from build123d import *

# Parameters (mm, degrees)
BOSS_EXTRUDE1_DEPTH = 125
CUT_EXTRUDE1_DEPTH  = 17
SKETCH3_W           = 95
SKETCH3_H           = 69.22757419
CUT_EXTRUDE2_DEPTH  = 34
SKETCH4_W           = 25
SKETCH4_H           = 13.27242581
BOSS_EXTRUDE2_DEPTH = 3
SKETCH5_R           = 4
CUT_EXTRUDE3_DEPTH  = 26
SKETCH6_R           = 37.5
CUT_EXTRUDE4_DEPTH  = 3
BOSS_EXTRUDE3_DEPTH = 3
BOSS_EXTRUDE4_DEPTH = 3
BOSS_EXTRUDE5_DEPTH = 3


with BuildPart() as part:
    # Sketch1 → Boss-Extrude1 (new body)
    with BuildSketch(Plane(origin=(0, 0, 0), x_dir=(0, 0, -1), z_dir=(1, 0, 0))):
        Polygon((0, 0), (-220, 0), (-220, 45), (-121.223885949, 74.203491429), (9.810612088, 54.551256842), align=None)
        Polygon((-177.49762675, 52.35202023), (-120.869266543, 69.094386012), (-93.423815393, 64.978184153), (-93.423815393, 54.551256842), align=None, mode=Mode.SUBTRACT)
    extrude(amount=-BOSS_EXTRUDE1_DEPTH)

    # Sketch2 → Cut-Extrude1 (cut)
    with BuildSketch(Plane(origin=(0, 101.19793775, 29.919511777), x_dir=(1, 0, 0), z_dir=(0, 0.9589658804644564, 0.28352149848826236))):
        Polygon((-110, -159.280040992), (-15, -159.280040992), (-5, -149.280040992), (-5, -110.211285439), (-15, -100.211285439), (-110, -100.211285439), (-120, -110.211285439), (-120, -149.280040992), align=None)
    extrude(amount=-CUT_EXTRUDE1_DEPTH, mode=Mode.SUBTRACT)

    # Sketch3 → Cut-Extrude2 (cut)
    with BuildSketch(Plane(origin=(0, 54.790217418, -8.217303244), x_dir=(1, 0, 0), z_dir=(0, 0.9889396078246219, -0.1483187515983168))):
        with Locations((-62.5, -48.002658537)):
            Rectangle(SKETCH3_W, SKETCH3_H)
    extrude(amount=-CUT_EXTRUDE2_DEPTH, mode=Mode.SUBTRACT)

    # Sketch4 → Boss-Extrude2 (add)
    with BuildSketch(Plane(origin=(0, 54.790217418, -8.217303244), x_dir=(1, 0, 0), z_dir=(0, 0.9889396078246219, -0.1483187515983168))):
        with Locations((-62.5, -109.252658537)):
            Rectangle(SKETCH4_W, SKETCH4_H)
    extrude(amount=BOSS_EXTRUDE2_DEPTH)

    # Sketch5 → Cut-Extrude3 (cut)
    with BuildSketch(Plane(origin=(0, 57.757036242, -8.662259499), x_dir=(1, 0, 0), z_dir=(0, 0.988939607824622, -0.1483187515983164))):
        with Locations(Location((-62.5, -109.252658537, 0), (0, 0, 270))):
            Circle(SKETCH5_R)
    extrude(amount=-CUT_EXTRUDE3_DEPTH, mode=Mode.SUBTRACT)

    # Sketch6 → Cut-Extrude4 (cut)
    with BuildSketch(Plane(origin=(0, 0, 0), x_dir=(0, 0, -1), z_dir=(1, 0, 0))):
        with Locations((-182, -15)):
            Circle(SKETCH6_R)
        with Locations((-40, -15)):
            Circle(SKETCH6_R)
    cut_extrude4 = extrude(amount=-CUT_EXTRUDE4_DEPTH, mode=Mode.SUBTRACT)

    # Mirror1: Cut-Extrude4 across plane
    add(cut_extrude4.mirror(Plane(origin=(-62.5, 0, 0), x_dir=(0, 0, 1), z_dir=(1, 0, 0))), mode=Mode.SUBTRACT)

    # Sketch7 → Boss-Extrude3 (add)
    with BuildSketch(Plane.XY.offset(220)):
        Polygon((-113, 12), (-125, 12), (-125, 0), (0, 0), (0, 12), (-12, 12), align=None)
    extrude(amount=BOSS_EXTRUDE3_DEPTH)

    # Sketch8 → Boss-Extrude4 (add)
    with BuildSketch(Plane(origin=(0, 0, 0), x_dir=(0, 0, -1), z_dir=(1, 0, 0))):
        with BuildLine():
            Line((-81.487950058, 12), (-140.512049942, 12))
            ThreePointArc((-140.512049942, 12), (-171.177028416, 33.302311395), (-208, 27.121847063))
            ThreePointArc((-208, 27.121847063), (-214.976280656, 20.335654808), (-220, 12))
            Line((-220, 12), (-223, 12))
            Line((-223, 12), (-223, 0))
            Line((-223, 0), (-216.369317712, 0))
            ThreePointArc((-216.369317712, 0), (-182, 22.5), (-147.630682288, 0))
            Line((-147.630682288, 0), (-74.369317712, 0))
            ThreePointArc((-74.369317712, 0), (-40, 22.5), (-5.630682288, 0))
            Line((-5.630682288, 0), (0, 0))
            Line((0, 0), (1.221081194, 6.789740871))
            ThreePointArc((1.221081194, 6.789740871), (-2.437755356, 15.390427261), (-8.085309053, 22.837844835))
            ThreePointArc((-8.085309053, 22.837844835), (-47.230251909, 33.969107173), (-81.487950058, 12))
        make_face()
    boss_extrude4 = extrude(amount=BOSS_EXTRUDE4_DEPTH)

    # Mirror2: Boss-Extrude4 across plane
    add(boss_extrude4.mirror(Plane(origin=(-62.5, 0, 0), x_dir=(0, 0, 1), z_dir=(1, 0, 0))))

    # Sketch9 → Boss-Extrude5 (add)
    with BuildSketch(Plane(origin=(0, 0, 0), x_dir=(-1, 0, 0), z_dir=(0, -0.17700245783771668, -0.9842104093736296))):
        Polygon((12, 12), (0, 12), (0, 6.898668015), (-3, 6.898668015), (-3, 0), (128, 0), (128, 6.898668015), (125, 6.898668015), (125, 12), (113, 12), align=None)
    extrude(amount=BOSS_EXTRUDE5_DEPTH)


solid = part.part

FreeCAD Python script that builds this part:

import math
import FreeCAD as App
import Part
import Sketcher
from FreeCAD import Vector


def add_polygon(sketch, points):
    """Adds a closed chain of lines whose ends are joined by coincident constraints."""
    first, n = sketch.GeometryCount, len(points)
    for a, b in zip(points, points[1:] + points[:1]):
        sketch.addGeometry(Part.LineSegment(App.Vector(*a, 0), App.Vector(*b, 0)), False)
    for i in range(n):
        sketch.addConstraint(Sketcher.Constraint("Coincident", first + i, 2, first + (i + 1) % n, 1))

doc = App.newDocument("Part")
params = doc.addObject("Spreadsheet::Sheet", "Params")
for row, (alias, value) in enumerate([
    ("sketch1_width", "45 mm"),
    ("sketch1_height", "220 mm"),
    ("sketch1_length", "132.5 mm"),
    ("pad1_length", "125 mm"),
    ("sketch2_width", "95 mm"),
    ("pocket1_length", "17 mm"),
    ("sketch3_width", "95 mm"),
    ("pocket2_length", "34 mm"),
    ("sketch4_width", "25 mm"),
    ("pad2_length", "3 mm"),
    ("sketch5_diameter", "8 mm"),
    ("pocket3_length", "26 mm"),
    ("sketch6_diameter", "75 mm"),
    ("pocket4_length", "3 mm"),
    ("sketch7_width", "125 mm"),
    ("sketch7_height", "12 mm"),
    ("pad3_length", "3 mm"),
    ("sketch8_radius", "38 mm"),
    ("sketch8_radius2", "49.5 mm"),
    ("sketch8_radius3", "37.5 mm"),
    ("sketch8_width", "12 mm"),
    ("sketch8_height", "3 mm"),
    ("pad4_length", "3 mm"),
    ("sketch9_width", "3 mm"),
    ("sketch9_width2", "131 mm"),
    ("pad5_length", "3 mm"),
], start=1):
    params.set(f"A{row}", alias)
    params.set(f"B{row}", "=" + value)
    params.setAlias(f"B{row}", alias)

body = doc.addObject("PartDesign::Body", "Body")

# Sketch on YZ plane
sketch1 = doc.addObject("Sketcher::SketchObject", "Sketch")
body.addObject(sketch1)
sketch1.AttachmentSupport = (doc.YZ_Plane, [""])
sketch1.MapMode = "FlatFace"
add_polygon(sketch1, [(0, 220), (0, 0), (54.551257, -9.810612), (74.203491, 121.223886), (45, 220)])  # lines 0-4
add_polygon(sketch1, [(52.35202, 177.497627), (69.094386, 120.869267), (64.978184, 93.423815), (54.551257, 93.423815)])  # lines 5-8
sketch1.addConstraint(Sketcher.Constraint("Vertical", 0))
sketch1.addConstraint(Sketcher.Constraint("Horizontal", 4))
sketch1.addConstraint(Sketcher.Constraint("Horizontal", 7))
sketch1.addConstraint(Sketcher.Constraint("Coincident", 0, 2, -1, 1))
sketch1.addConstraint(Sketcher.Constraint("Parallel", 3, 5))
sketch1.addConstraint(Sketcher.Constraint("Parallel", 2, 6))
sketch1.addConstraint(Sketcher.Constraint("Vertical", 1, 2, 7, 2))
sketch1.addConstraint(Sketcher.Constraint("DistanceX", 4, 2, 4, 1, 45.0))
sketch1.addConstraint(Sketcher.Constraint("DistanceY", 0, 2, 0, 1, 220.0))
sketch1.addConstraint(Sketcher.Constraint("Distance", 2, 132.5))
sketch1.addConstraint(Sketcher.Constraint("DistanceY", 1, 2, 2, 2, 131.034498))
sketch1.addConstraint(Sketcher.Constraint("DistanceX", 6, 2, 5, 2, 4.116202))
sketch1.addConstraint(Sketcher.Constraint("Distance", 3, 103.002741))
sketch1.addConstraint(Sketcher.Constraint("Distance", 8, 84.102571))
sketch1.addConstraint(Sketcher.Constraint("DistanceX", 7, 2, 7, 1, 10.426927))
sketch1.addConstraint(Sketcher.Constraint("DistanceX", -1, 1, 2, 2, 74.203491))
sketch1.addConstraint(Sketcher.Constraint("DistanceY", 5, 2, 2, 2, 0.354619))
sketch1.setExpression("Constraints[16]", "Params.sketch1_width")
sketch1.setExpression("Constraints[17]", "Params.sketch1_height")
sketch1.setExpression("Constraints[18]", "Params.sketch1_length")
pad1 = doc.addObject("PartDesign::Pad", "Pad")
body.addObject(pad1)
pad1.Profile = sketch1
pad1.setExpression("Length", "Params.pad1_length")
pad1.Reversed = True

# Sketch on an angled plane
sketch2 = doc.addObject("Sketcher::SketchObject", "Sketch001")
body.addObject(sketch2)
sketch2.Placement = App.Placement(Vector(0, 101.197938, 29.919512), App.Rotation(Vector(1, 0, 0), Vector(0, 0.283521498, -0.95896588), Vector(0, 0.95896588, 0.283521498), "ZXY"))
add_polygon(sketch2, [(-110, -159.280041), (-15, -159.280041), (-5, -149.280041), (-5, -110.211285), (-15, -100.211285), (-110, -100.211285), (-120, -110.211285), (-120, -149.280041)])  # lines 0-7
sketch2.addConstraint(Sketcher.Constraint("Horizontal", 0))
sketch2.addConstraint(Sketcher.Constraint("Vertical", 2))
sketch2.addConstraint(Sketcher.Constraint("Horizontal", 4))
sketch2.addConstraint(Sketcher.Constraint("Vertical", 6))
sketch2.addConstraint(Sketcher.Constraint("Perpendicular", 1, 3))
sketch2.addConstraint(Sketcher.Constraint("Perpendicular", 3, 5))
sketch2.addConstraint(Sketcher.Constraint("Perpendicular", 5, 7))
sketch2.addConstraint(Sketcher.Constraint("Horizontal", 2, 2, 5, 2))
sketch2.addConstraint(Sketcher.Constraint("Horizontal", 1, 2, 6, 2))
sketch2.addConstraint(Sketcher.Constraint("Vertical", 0, 2, 3, 2))
sketch2.addConstraint(Sketcher.Constraint("Vertical", 4, 2, 7, 2))
sketch2.addConstraint(Sketcher.Constraint("DistanceX", 0, 1, 0, 2, 95.0))
sketch2.addConstraint(Sketcher.Constraint("DistanceX", 0, 2, -1, 1, 15.0))
sketch2.addConstraint(Sketcher.Constraint("DistanceX", 1, 2, -1, 1, 5.0))
sketch2.addConstraint(Sketcher.Constraint("DistanceY", 2, 1, 2, 2, 39.068756))
sketch2.addConstraint(Sketcher.Constraint("DistanceY", 0, 2, -1, 1, 159.280041))
sketch2.setExpression("Constraints[19]", "Params.sketch2_width")
pocket1 = doc.addObject("PartDesign::Pocket", "Pocket")
body.addObject(pocket1)
pocket1.Profile = sketch2
pocket1.setExpression("Length", "Params.pocket1_length")

# Sketch on an angled plane
sketch3 = doc.addObject("Sketcher::SketchObject", "Sketch002")
body.addObject(sketch3)
sketch3.Placement = App.Placement(Vector(0, 54.790217, -8.217303), App.Rotation(Vector(1, 0, 0), Vector(0, -0.148318752, -0.988939608), Vector(0, 0.988939608, -0.148318752), "ZXY"))
add_polygon(sketch3, [(-110, -13.388871), (-110, -82.616446), (-15, -82.616446), (-15, -13.388871)])  # lines 0-3
sketch3.addConstraint(Sketcher.Constraint("Vertical", 0))
sketch3.addConstraint(Sketcher.Constraint("Horizontal", 1))
sketch3.addConstraint(Sketcher.Constraint("Vertical", 2))
sketch3.addConstraint(Sketcher.Constraint("Horizontal", 3))
sketch3.addConstraint(Sketcher.Constraint("DistanceX", 1, 1, 1, 2, 95.0))
sketch3.addConstraint(Sketcher.Constraint("DistanceX", 0, 2, -1, 1, 110.0))
sketch3.addConstraint(Sketcher.Constraint("DistanceY", 0, 2, 0, 1, 69.227574))
sketch3.addConstraint(Sketcher.Constraint("DistanceY", 2, 2, -1, 1, 13.388871))
sketch3.setExpression("Constraints[8]", "Params.sketch3_width")
pocket2 = doc.addObject("PartDesign::Pocket", "Pocket001")
body.addObject(pocket2)
pocket2.Profile = sketch3
pocket2.setExpression("Length", "Params.pocket2_length")

# Sketch on an angled plane
sketch4 = doc.addObject("Sketcher::SketchObject", "Sketch003")
body.addObject(sketch4)
sketch4.Placement = App.Placement(Vector(0, 54.790217, -8.217303), App.Rotation(Vector(1, 0, 0), Vector(0, -0.148318752, -0.988939608), Vector(0, 0.988939608, -0.148318752), "ZXY"))
add_polygon(sketch4, [(-75, -102.616446), (-75, -115.888871), (-50, -115.888871), (-50, -102.616446)])  # lines 0-3
sketch4.addConstraint(Sketcher.Constraint("Vertical", 0))
sketch4.addConstraint(Sketcher.Constraint("Horizontal", 1))
sketch4.addConstraint(Sketcher.Constraint("Vertical", 2))
sketch4.addConstraint(Sketcher.Constraint("Horizontal", 3))
sketch4.addConstraint(Sketcher.Constraint("DistanceX", 1, 1, 1, 2, 25.0))
sketch4.addConstraint(Sketcher.Constraint("DistanceX", 0, 2, -1, 1, 75.0))
sketch4.addConstraint(Sketcher.Constraint("DistanceY", 0, 2, 0, 1, 13.272426))
sketch4.addConstraint(Sketcher.Constraint("DistanceY", 0, 2, -1, 1, 115.888871))
sketch4.setExpression("Constraints[8]", "Params.sketch4_width")
pad2 = doc.addObject("PartDesign::Pad", "Pad001")
body.addObject(pad2)
pad2.Profile = sketch4
pad2.setExpression("Length", "Params.pad2_length")

# Sketch on an angled plane
sketch5 = doc.addObject("Sketcher::SketchObject", "Sketch004")
body.addObject(sketch5)
sketch5.Placement = App.Placement(Vector(0, 57.757036, -8.662259), App.Rotation(Vector(1, 0, 0), Vector(0, -0.148318752, -0.988939608), Vector(0, 0.988939608, -0.148318752), "ZXY"))
sketch5.addGeometry(Part.Circle(Vector(-62.5, -109.252659, 0), Vector(0, 0, 1), 4), False)
sketch5.addConstraint(Sketcher.Constraint("Diameter", 0, 8.0))
sketch5.addConstraint(Sketcher.Constraint("DistanceX", 0, 3, -1, 1, 62.5))
sketch5.addConstraint(Sketcher.Constraint("DistanceY", 0, 3, -1, 1, 109.252659))
sketch5.setExpression("Constraints[0]", "Params.sketch5_diameter")
pocket3 = doc.addObject("PartDesign::Pocket", "Pocket002")
body.addObject(pocket3)
pocket3.Profile = sketch5
pocket3.setExpression("Length", "Params.pocket3_length")

# Sketch on YZ plane
sketch6 = doc.addObject("Sketcher::SketchObject", "Sketch005")
body.addObject(sketch6)
sketch6.AttachmentSupport = (doc.YZ_Plane, [""])
sketch6.MapMode = "FlatFace"
sketch6.addGeometry(Part.Circle(Vector(-15, 182, 0), Vector(0, 0, 1), 37.5), False)
sketch6.addGeometry(Part.Circle(Vector(-15, 40, 0), Vector(0, 0, 1), 37.5), False)
sketch6.addConstraint(Sketcher.Constraint("Equal", 0, 1))
sketch6.addConstraint(Sketcher.Constraint("Vertical", 0, 3, 1, 3))
sketch6.addConstraint(Sketcher.Constraint("Diameter", 0, 75.0))
sketch6.addConstraint(Sketcher.Constraint("DistanceX", 0, 3, -1, 1, 15.0))
sketch6.addConstraint(Sketcher.Constraint("DistanceY", -1, 1, 0, 3, 182.0))
sketch6.addConstraint(Sketcher.Constraint("DistanceY", -1, 1, 1, 3, 40.0))
sketch6.setExpression("Constraints[2]", "Params.sketch6_diameter")
pocket4 = doc.addObject("PartDesign::Pocket", "Pocket003")
body.addObject(pocket4)
pocket4.Profile = sketch6
pocket4.setExpression("Length", "Params.pocket4_length")
doc.recompute()

datumplane = doc.addObject("PartDesign::Plane", "DatumPlane")
body.addObject(datumplane)
datumplane.AttachmentSupport = (doc.YZ_Plane, [""])
datumplane.MapMode = "FlatFace"
datumplane.AttachmentOffset = App.Placement(Vector(0, 0, -62.5), App.Rotation())
mirrored = doc.addObject("PartDesign::Mirrored", "Mirrored")
body.addObject(mirrored)
mirrored.Originals = [pocket4]
mirrored.MirrorPlane = (datumplane, [""])
body.Tip = mirrored

# Sketch on XY plane
sketch7 = doc.addObject("Sketcher::SketchObject", "Sketch006")
body.addObject(sketch7)
sketch7.AttachmentSupport = (doc.XY_Plane, [""])
sketch7.MapMode = "FlatFace"
sketch7.AttachmentOffset = App.Placement(Vector(0, 0, 220), App.Rotation())
add_polygon(sketch7, [(-125, 12), (-125, 0), (0, 0), (0, 12)])  # lines 0-3
sketch7.addConstraint(Sketcher.Constraint("Vertical", 0))
sketch7.addConstraint(Sketcher.Constraint("Horizontal", 1))
sketch7.addConstraint(Sketcher.Constraint("Vertical", 2))
sketch7.addConstraint(Sketcher.Constraint("Horizontal", 3))
sketch7.addConstraint(Sketcher.Constraint("Coincident", 1, 2, -1, 1))
sketch7.addConstraint(Sketcher.Constraint("DistanceX", 1, 1, 1, 2, 125.0))
sketch7.addConstraint(Sketcher.Constraint("DistanceY", 0, 2, 0, 1, 12.0))
sketch7.setExpression("Constraints[9]", "Params.sketch7_width")
sketch7.setExpression("Constraints[10]", "Params.sketch7_height")
pad3 = doc.addObject("PartDesign::Pad", "Pad002")
body.addObject(pad3)
pad3.Profile = sketch7
pad3.setExpression("Length", "Params.pad3_length")

# Sketch on YZ plane
sketch8 = doc.addObject("Sketcher::SketchObject", "Sketch007")
body.addObject(sketch8)
sketch8.AttachmentSupport = (doc.YZ_Plane, [""])
sketch8.MapMode = "FlatFace"
sketch8.addGeometry(Part.LineSegment(Vector(12, 81.48795, 0), Vector(12, 140.51205, 0)), False)
sketch8.addGeometry(Part.ArcOfCircle(Part.Circle(Vector(-15, 182, 0), Vector(0, 0, 1), 49.5), math.radians(-56.944269), math.radians(31.685245)), False)
sketch8.addGeometry(Part.ArcOfCircle(Part.Circle(Vector(-3.285573, 185.209897, 0), Vector(0, 0, 1), 38), math.radians(36.851246), math.radians(66.280967)), False)
sketch8.addGeometry(Part.LineSegment(Vector(12, 220, 0), Vector(12, 223, 0)), False)
sketch8.addGeometry(Part.LineSegment(Vector(12, 223, 0), Vector(0, 223, 0)), False)
sketch8.addGeometry(Part.LineSegment(Vector(0, 223, 0), Vector(0, 216.369318, 0)), False)
sketch8.addGeometry(Part.ArcOfCircle(Part.Circle(Vector(-15, 182, 0), Vector(0, 0, 1), 37.5), math.radians(-66.421822), math.radians(66.421822)), False)
sketch8.addGeometry(Part.LineSegment(Vector(0, 147.630682, 0), Vector(0, 74.369318, 0)), False)
sketch8.addGeometry(Part.ArcOfCircle(Part.Circle(Vector(-15, 40, 0), Vector(0, 0, 1), 37.5), math.radians(-66.421822), math.radians(66.421822)), False)
sketch8.addGeometry(Part.LineSegment(Vector(0, 5.630682, 0), Vector(0, 0, 0)), False)
sketch8.addGeometry(Part.LineSegment(Vector(0, 0, 0), Vector(6.789741, -1.221081, 0)), False)
sketch8.addGeometry(Part.ArcOfCircle(Part.Circle(Vector(-3.672546, 35.310283, 0), Vector(0, 0, 1), 38), math.radians(-74.018717), math.radians(-45.761886)), False)
sketch8.addGeometry(Part.ArcOfCircle(Part.Circle(Vector(-15, 40, 0), Vector(0, 0, 1), 49.5), math.radians(-40.146277), math.radians(56.944269)), False)
sketch8.addConstraint(Sketcher.Constraint("Coincident", 0, 2, 1, 1))
sketch8.addConstraint(Sketcher.Constraint("Coincident", 1, 2, 2, 1))
sketch8.addConstraint(Sketcher.Constraint("Coincident", 2, 2, 3, 1))
sketch8.addConstraint(Sketcher.Constraint("Coincident", 3, 2, 4, 1))
sketch8.addConstraint(Sketcher.Constraint("Coincident", 4, 2, 5, 1))
sketch8.addConstraint(Sketcher.Constraint("Coincident", 5, 2, 6, 2))
sketch8.addConstraint(Sketcher.Constraint("Coincident", 6, 1, 7, 1))
sketch8.addConstraint(Sketcher.Constraint("Coincident", 7, 2, 8, 2))
sketch8.addConstraint(Sketcher.Constraint("Coincident", 8, 1, 9, 1))
sketch8.addConstraint(Sketcher.Constraint("Coincident", 9, 2, 10, 1))
sketch8.addConstraint(Sketcher.Constraint("Coincident", 10, 2, 11, 1))
sketch8.addConstraint(Sketcher.Constraint("Coincident", 11, 2, 12, 1))
sketch8.addConstraint(Sketcher.Constraint("Coincident", 12, 2, 0, 1))
sketch8.addConstraint(Sketcher.Constraint("Vertical", 0))
sketch8.addConstraint(Sketcher.Constraint("Vertical", 3))
sketch8.addConstraint(Sketcher.Constraint("Horizontal", 4))
sketch8.addConstraint(Sketcher.Constraint("Vertical", 5))
sketch8.addConstraint(Sketcher.Constraint("Vertical", 7))
sketch8.addConstraint(Sketcher.Constraint("Vertical", 9))
sketch8.addConstraint(Sketcher.Constraint("Coincident", 9, 2, -1, 1))
sketch8.addConstraint(Sketcher.Constraint("Coincident", 6, 3, 1, 3))
sketch8.addConstraint(Sketcher.Constraint("Coincident", 12, 3, 8, 3))
sketch8.addConstraint(Sketcher.Constraint("Equal", 6, 8))
sketch8.addConstraint(Sketcher.Constraint("Equal", 2, 11))
sketch8.addConstraint(Sketcher.Constraint("Equal", 1, 12))
sketch8.addConstraint(Sketcher.Constraint("PointOnObject", 4, 2, -2))
sketch8.addConstraint(Sketcher.Constraint("PointOnObject", 6, 1, -2))
sketch8.addConstraint(Sketcher.Constraint("Vertical", 6, 3, 8, 3))
sketch8.addConstraint(Sketcher.Constraint("Vertical", 0, 2, 2, 2))
sketch8.addConstraint(Sketcher.Constraint("Radius", 2, 38.0))
sketch8.addConstraint(Sketcher.Constraint("Radius", 1, 49.5))
sketch8.addConstraint(Sketcher.Constraint("Radius", 6, 37.5))
sketch8.addConstraint(Sketcher.Constraint("DistanceX", 4, 2, 4, 1, 12.0))
sketch8.addConstraint(Sketcher.Constraint("DistanceY", 3, 1, 3, 2, 3.0))
sketch8.addConstraint(Sketcher.Constraint("DistanceX", 1, 3, -1, 1, 15.0))
sketch8.addConstraint(Sketcher.Constraint("DistanceY", -1, 1, 1, 3, 182.0))
sketch8.addConstraint(Sketcher.Constraint("DistanceY", -1, 1, 8, 3, 40.0))
sketch8.addConstraint(Sketcher.Constraint("DistanceY", -1, 1, 1, 2, 208.0))
sketch8.addConstraint(Sketcher.Constraint("DistanceY", -1, 1, 2, 2, 220.0))
sketch8.addConstraint(Sketcher.Constraint("DistanceY", 8, 1, 11, 3, 29.679601))
sketch8.addConstraint(Sketcher.Constraint("Distance", 10, 6.898668))
sketch8.addConstraint(Sketcher.Constraint("DistanceX", -1, 1, 10, 2, 6.789741))
sketch8.setExpression("Constraints[29]", "Params.sketch8_radius")
sketch8.setExpression("Constraints[30]", "Params.sketch8_radius2")
sketch8.setExpression("Constraints[31]", "Params.sketch8_radius3")
sketch8.setExpression("Constraints[32]", "Params.sketch8_width")
sketch8.setExpression("Constraints[33]", "Params.sketch8_height")
pad4 = doc.addObject("PartDesign::Pad", "Pad003")
body.addObject(pad4)
pad4.Profile = sketch8
pad4.setExpression("Length", "Params.pad4_length")
doc.recompute()

datumplane2 = doc.addObject("PartDesign::Plane", "DatumPlane001")
body.addObject(datumplane2)
datumplane2.AttachmentSupport = (doc.YZ_Plane, [""])
datumplane2.MapMode = "FlatFace"
datumplane2.AttachmentOffset = App.Placement(Vector(0, 0, -62.5), App.Rotation())
mirrored2 = doc.addObject("PartDesign::Mirrored", "Mirrored001")
body.addObject(mirrored2)
mirrored2.Originals = [pad4]
mirrored2.MirrorPlane = (datumplane2, [""])
body.Tip = mirrored2

# Sketch on an angled plane
sketch9 = doc.addObject("Sketcher::SketchObject", "Sketch008")
body.addObject(sketch9)
sketch9.Placement = App.Placement(Vector(0, 0, 0), App.Rotation(Vector(-1, 0, 0), Vector(0, 0.984210409, -0.177002458), Vector(0, -0.177002458, -0.984210409), "ZXY"))
add_polygon(sketch9, [(0, 12), (0, 6.898668), (-3, 6.898668), (-3, 0), (128, 0), (128, 6.898668), (125, 6.898668), (125, 12)])  # lines 0-7
sketch9.addConstraint(Sketcher.Constraint("Vertical", 0))
sketch9.addConstraint(Sketcher.Constraint("Horizontal", 1))
sketch9.addConstraint(Sketcher.Constraint("Vertical", 2))
sketch9.addConstraint(Sketcher.Constraint("Horizontal", 3))
sketch9.addConstraint(Sketcher.Constraint("Vertical", 4))
sketch9.addConstraint(Sketcher.Constraint("Horizontal", 5))
sketch9.addConstraint(Sketcher.Constraint("Vertical", 6))
sketch9.addConstraint(Sketcher.Constraint("Horizontal", 7))
sketch9.addConstraint(Sketcher.Constraint("PointOnObject", 0, 2, -2))
sketch9.addConstraint(Sketcher.Constraint("PointOnObject", 2, 2, -1))
sketch9.addConstraint(Sketcher.Constraint("Horizontal", 1, 2, 4, 2))
sketch9.addConstraint(Sketcher.Constraint("Equal", 1, 5))
sketch9.addConstraint(Sketcher.Constraint("DistanceX", 1, 2, 1, 1, 3.0))
sketch9.addConstraint(Sketcher.Constraint("DistanceX", 3, 1, 3, 2, 131.0))
sketch9.addConstraint(Sketcher.Constraint("DistanceY", -1, 1, 6, 2, 12.0))
sketch9.addConstraint(Sketcher.Constraint("DistanceY", 0, 2, 0, 1, 5.101332))
sketch9.setExpression("Constraints[20]", "Params.sketch9_width")
sketch9.setExpression("Constraints[21]", "Params.sketch9_width2")
pad5 = doc.addObject("PartDesign::Pad", "Pad004")
body.addObject(pad5)
pad5.Profile = sketch9
pad5.setExpression("Length", "Params.pad5_length")

doc.recompute()
